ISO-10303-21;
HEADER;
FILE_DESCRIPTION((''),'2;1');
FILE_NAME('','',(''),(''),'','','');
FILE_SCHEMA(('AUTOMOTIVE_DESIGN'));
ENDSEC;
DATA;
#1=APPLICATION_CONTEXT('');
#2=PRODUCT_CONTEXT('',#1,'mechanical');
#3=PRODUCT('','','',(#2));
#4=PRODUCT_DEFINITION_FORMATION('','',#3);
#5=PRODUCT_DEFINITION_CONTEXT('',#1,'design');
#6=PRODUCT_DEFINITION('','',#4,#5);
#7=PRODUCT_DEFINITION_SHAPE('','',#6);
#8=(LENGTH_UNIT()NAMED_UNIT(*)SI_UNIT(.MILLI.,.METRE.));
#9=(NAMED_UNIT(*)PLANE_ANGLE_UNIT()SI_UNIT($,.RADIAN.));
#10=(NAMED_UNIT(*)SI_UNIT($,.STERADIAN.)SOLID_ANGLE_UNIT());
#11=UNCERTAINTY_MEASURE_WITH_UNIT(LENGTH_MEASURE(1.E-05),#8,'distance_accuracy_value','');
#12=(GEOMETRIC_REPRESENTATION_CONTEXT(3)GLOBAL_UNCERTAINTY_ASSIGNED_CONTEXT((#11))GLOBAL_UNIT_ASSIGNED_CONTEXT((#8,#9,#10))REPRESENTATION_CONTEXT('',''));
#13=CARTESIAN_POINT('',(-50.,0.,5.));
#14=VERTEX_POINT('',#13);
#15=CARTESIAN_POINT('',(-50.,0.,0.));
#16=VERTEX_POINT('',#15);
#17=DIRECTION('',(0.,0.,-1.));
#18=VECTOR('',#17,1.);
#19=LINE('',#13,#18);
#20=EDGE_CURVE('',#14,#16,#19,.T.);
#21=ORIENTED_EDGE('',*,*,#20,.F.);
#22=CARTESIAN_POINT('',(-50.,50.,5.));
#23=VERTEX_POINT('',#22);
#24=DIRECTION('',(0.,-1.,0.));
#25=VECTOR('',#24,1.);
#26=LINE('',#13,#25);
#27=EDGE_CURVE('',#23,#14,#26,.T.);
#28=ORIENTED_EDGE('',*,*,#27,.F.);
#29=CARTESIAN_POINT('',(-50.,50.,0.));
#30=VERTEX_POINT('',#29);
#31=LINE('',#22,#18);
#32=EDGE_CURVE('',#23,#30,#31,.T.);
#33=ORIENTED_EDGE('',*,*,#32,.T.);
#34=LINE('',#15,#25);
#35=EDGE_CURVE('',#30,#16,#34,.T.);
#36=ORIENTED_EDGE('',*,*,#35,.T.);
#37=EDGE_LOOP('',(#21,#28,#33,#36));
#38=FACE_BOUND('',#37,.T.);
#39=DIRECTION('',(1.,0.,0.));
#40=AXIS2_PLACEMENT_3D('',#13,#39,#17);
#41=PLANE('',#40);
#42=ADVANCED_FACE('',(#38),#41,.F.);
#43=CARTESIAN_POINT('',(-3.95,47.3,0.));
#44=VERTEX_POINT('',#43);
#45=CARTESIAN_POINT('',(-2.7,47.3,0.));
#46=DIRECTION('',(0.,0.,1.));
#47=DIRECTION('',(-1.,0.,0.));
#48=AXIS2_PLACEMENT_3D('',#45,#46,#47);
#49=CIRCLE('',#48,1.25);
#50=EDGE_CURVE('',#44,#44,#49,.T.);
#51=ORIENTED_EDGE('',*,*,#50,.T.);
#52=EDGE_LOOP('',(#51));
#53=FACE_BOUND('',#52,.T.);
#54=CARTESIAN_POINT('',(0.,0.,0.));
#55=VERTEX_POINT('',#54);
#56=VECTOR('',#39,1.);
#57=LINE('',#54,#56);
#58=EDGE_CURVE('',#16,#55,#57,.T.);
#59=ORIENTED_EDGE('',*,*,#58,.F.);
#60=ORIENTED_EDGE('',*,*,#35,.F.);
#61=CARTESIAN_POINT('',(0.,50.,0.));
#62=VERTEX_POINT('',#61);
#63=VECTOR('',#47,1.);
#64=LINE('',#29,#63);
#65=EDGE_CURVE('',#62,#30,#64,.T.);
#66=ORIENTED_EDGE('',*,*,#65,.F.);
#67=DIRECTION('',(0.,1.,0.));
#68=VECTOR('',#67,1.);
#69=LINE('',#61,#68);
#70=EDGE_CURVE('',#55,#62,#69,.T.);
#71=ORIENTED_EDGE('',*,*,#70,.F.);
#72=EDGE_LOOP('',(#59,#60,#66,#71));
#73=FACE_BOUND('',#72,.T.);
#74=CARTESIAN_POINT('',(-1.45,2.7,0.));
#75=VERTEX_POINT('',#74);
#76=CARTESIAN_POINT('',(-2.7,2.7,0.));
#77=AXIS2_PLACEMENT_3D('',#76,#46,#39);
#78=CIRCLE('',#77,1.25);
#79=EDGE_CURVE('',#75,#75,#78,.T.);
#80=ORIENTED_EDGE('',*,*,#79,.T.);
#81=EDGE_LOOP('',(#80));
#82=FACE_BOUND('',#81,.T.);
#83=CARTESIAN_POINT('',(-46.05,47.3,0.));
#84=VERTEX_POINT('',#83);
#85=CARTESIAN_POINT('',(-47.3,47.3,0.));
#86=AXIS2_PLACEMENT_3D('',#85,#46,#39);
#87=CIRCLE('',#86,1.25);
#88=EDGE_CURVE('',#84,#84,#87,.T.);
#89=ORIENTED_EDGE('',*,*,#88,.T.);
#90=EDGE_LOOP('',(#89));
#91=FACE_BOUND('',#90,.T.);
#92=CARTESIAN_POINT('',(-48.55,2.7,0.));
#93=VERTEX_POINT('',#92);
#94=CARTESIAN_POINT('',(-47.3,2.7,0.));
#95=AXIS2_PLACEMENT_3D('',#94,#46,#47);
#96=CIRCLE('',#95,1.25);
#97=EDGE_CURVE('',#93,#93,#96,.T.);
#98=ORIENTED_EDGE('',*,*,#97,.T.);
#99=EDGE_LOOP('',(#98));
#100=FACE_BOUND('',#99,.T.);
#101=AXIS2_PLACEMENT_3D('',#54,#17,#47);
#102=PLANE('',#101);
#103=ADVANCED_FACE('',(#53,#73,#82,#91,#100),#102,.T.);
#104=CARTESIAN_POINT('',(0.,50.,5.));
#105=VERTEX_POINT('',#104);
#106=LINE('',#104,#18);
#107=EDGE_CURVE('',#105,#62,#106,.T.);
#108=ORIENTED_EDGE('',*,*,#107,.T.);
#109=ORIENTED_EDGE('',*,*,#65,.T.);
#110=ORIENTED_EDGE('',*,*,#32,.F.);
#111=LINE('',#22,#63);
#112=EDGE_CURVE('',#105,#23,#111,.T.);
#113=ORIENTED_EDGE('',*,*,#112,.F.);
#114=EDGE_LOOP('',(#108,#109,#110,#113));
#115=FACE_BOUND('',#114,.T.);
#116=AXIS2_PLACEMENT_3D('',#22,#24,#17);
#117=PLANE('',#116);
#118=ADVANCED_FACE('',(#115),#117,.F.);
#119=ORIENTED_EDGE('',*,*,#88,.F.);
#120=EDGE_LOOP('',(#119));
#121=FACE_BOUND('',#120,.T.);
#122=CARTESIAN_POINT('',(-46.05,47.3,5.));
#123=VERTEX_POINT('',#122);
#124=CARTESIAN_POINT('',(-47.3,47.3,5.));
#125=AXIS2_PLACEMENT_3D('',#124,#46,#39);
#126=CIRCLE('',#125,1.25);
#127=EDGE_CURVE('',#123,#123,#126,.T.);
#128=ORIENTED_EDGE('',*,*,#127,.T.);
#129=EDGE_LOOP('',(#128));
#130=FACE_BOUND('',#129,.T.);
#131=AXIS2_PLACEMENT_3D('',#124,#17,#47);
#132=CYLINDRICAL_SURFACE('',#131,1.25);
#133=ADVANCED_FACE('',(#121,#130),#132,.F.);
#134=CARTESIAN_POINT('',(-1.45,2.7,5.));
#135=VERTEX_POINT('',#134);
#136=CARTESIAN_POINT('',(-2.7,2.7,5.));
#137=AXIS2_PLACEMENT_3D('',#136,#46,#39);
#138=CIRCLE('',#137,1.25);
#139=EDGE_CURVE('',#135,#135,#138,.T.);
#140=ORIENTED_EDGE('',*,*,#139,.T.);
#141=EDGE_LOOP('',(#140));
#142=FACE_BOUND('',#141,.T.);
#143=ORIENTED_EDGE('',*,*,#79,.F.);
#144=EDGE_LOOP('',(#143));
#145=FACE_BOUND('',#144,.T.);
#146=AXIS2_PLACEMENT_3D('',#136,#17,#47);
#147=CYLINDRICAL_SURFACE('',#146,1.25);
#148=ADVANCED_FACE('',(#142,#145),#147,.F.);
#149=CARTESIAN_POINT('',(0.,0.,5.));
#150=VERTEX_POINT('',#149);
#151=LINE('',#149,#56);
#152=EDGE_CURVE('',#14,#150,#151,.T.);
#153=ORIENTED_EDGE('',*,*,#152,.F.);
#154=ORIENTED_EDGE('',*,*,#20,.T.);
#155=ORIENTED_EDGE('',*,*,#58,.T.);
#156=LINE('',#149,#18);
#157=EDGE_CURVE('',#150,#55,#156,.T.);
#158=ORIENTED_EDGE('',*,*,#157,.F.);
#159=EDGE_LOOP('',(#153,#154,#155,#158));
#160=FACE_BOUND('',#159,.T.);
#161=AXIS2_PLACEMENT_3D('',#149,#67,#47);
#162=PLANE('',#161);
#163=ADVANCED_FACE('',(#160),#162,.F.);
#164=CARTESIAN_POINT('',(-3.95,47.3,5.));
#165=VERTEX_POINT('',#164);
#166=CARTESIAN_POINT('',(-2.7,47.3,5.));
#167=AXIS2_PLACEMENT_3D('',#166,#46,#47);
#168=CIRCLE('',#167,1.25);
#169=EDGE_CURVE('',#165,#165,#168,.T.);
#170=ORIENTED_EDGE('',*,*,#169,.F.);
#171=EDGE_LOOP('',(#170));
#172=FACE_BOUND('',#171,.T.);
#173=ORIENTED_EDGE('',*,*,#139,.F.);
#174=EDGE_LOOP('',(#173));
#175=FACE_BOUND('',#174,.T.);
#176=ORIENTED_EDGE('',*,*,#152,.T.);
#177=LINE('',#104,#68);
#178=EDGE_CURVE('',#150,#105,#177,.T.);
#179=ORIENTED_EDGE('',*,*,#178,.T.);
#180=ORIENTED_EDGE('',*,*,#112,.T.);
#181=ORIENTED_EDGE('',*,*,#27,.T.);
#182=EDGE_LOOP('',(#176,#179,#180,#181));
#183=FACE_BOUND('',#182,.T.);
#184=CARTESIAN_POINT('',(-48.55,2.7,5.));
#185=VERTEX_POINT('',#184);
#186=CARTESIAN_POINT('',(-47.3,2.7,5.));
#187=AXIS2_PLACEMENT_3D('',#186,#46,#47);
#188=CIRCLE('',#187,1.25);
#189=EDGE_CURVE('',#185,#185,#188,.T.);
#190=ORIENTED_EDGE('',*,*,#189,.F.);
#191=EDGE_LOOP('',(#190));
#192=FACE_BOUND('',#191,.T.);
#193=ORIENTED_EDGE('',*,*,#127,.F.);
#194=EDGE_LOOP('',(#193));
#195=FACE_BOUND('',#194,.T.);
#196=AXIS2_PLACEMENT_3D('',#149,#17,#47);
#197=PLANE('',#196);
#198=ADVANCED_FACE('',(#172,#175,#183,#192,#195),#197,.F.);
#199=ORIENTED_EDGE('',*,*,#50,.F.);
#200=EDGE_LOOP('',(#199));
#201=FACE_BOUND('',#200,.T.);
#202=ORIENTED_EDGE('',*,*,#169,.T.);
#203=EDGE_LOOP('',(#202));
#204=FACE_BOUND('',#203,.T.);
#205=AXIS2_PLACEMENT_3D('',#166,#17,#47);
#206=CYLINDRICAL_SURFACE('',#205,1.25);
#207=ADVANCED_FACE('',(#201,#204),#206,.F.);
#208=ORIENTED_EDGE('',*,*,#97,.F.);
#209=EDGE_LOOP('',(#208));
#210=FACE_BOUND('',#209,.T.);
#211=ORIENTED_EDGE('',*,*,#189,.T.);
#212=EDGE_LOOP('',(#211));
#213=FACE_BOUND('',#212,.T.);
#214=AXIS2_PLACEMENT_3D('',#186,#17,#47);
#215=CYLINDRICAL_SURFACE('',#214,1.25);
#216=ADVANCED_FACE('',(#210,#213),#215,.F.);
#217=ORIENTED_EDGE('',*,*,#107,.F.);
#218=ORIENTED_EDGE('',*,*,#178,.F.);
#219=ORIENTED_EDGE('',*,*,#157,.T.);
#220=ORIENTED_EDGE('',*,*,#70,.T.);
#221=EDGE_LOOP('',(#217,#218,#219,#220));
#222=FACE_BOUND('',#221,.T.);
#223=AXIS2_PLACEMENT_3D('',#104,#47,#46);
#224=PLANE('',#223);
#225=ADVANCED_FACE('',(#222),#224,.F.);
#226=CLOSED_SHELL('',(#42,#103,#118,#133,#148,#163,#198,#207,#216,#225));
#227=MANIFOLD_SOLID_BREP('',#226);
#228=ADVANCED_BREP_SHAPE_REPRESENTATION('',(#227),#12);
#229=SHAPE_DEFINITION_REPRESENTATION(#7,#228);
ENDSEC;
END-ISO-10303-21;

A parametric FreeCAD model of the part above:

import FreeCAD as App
import Part
import Sketcher
from FreeCAD import Vector

doc = App.newDocument("Part")
body = doc.addObject("PartDesign::Body", "Body")

# Sketch on XY plane
sketch1 = doc.addObject("Sketcher::SketchObject", "Sketch")
body.addObject(sketch1)
sketch1.AttachmentSupport = (doc.XY_Plane, [""])
sketch1.MapMode = "FlatFace"
sketch1.addGeometry([
    Part.LineSegment(Vector(-50, 50, 0), Vector(-50, 0, 0)),  # 0
    Part.LineSegment(Vector(-50, 0, 0), Vector(0, 0, 0)),  # 1
    Part.LineSegment(Vector(0, 0, 0), Vector(0, 50, 0)),  # 2
    Part.LineSegment(Vector(0, 50, 0), Vector(-50, 50, 0)),  # 3
    Part.Circle(Vector(-47.3, 2.7, 0), Vector(0, 0, 1), 1.25),  # 4
    Part.Circle(Vector(-2.7, 2.7, 0), Vector(0, 0, 1), 1.25),  # 5
    Part.Circle(Vector(-47.3, 47.3, 0), Vector(0, 0, 1), 1.25),  # 6
    Part.Circle(Vector(-2.7, 47.3, 0), Vector(0, 0, 1), 1.25),  # 7
], False)
sketch1.addConstraint([
    Sketcher.Constraint("Coincident", 0, 2, 1, 1),
    Sketcher.Constraint("Coincident", 1, 2, 2, 1),
    Sketcher.Constraint("Coincident", 2, 2, 3, 1),
    Sketcher.Constraint("Coincident", 3, 2, 0, 1),
    Sketcher.Constraint("Vertical", 0),
    Sketcher.Constraint("Horizontal", 1),
    Sketcher.Constraint("Vertical", 2),
    Sketcher.Constraint("Horizontal", 3),
    Sketcher.Constraint("Coincident", 1, 2, -1, 1),
    Sketcher.Constraint("Equal", 4, 5),
    Sketcher.Constraint("Equal", 5, 6),
    Sketcher.Constraint("Equal", 6, 7),
    Sketcher.Constraint("Horizontal", 4, 3, 5, 3),
    Sketcher.Constraint("Horizontal", 6, 3, 7, 3),
    Sketcher.Constraint("Vertical", 4, 3, 6, 3),
    Sketcher.Constraint("Vertical", 5, 3, 7, 3),
    Sketcher.Constraint("Equal", 3, 0),
    Sketcher.Constraint("Diameter", 4, 2.5),
    Sketcher.Constraint("DistanceX", 1, 1, 1, 2, 50.0),
    Sketcher.Constraint("DistanceX", 4, 3, -1, 1, 47.3),
    Sketcher.Constraint("DistanceY", -1, 1, 4, 3, 2.7),
    Sketcher.Constraint("DistanceX", 5, 3, -1, 1, 2.7),
    Sketcher.Constraint("DistanceY", -1, 1, 6, 3, 47.3),
])
pad1 = doc.addObject("PartDesign::Pad", "Pad")
body.addObject(pad1)
pad1.Profile = sketch1
pad1.Length = 5

doc.recompute()
